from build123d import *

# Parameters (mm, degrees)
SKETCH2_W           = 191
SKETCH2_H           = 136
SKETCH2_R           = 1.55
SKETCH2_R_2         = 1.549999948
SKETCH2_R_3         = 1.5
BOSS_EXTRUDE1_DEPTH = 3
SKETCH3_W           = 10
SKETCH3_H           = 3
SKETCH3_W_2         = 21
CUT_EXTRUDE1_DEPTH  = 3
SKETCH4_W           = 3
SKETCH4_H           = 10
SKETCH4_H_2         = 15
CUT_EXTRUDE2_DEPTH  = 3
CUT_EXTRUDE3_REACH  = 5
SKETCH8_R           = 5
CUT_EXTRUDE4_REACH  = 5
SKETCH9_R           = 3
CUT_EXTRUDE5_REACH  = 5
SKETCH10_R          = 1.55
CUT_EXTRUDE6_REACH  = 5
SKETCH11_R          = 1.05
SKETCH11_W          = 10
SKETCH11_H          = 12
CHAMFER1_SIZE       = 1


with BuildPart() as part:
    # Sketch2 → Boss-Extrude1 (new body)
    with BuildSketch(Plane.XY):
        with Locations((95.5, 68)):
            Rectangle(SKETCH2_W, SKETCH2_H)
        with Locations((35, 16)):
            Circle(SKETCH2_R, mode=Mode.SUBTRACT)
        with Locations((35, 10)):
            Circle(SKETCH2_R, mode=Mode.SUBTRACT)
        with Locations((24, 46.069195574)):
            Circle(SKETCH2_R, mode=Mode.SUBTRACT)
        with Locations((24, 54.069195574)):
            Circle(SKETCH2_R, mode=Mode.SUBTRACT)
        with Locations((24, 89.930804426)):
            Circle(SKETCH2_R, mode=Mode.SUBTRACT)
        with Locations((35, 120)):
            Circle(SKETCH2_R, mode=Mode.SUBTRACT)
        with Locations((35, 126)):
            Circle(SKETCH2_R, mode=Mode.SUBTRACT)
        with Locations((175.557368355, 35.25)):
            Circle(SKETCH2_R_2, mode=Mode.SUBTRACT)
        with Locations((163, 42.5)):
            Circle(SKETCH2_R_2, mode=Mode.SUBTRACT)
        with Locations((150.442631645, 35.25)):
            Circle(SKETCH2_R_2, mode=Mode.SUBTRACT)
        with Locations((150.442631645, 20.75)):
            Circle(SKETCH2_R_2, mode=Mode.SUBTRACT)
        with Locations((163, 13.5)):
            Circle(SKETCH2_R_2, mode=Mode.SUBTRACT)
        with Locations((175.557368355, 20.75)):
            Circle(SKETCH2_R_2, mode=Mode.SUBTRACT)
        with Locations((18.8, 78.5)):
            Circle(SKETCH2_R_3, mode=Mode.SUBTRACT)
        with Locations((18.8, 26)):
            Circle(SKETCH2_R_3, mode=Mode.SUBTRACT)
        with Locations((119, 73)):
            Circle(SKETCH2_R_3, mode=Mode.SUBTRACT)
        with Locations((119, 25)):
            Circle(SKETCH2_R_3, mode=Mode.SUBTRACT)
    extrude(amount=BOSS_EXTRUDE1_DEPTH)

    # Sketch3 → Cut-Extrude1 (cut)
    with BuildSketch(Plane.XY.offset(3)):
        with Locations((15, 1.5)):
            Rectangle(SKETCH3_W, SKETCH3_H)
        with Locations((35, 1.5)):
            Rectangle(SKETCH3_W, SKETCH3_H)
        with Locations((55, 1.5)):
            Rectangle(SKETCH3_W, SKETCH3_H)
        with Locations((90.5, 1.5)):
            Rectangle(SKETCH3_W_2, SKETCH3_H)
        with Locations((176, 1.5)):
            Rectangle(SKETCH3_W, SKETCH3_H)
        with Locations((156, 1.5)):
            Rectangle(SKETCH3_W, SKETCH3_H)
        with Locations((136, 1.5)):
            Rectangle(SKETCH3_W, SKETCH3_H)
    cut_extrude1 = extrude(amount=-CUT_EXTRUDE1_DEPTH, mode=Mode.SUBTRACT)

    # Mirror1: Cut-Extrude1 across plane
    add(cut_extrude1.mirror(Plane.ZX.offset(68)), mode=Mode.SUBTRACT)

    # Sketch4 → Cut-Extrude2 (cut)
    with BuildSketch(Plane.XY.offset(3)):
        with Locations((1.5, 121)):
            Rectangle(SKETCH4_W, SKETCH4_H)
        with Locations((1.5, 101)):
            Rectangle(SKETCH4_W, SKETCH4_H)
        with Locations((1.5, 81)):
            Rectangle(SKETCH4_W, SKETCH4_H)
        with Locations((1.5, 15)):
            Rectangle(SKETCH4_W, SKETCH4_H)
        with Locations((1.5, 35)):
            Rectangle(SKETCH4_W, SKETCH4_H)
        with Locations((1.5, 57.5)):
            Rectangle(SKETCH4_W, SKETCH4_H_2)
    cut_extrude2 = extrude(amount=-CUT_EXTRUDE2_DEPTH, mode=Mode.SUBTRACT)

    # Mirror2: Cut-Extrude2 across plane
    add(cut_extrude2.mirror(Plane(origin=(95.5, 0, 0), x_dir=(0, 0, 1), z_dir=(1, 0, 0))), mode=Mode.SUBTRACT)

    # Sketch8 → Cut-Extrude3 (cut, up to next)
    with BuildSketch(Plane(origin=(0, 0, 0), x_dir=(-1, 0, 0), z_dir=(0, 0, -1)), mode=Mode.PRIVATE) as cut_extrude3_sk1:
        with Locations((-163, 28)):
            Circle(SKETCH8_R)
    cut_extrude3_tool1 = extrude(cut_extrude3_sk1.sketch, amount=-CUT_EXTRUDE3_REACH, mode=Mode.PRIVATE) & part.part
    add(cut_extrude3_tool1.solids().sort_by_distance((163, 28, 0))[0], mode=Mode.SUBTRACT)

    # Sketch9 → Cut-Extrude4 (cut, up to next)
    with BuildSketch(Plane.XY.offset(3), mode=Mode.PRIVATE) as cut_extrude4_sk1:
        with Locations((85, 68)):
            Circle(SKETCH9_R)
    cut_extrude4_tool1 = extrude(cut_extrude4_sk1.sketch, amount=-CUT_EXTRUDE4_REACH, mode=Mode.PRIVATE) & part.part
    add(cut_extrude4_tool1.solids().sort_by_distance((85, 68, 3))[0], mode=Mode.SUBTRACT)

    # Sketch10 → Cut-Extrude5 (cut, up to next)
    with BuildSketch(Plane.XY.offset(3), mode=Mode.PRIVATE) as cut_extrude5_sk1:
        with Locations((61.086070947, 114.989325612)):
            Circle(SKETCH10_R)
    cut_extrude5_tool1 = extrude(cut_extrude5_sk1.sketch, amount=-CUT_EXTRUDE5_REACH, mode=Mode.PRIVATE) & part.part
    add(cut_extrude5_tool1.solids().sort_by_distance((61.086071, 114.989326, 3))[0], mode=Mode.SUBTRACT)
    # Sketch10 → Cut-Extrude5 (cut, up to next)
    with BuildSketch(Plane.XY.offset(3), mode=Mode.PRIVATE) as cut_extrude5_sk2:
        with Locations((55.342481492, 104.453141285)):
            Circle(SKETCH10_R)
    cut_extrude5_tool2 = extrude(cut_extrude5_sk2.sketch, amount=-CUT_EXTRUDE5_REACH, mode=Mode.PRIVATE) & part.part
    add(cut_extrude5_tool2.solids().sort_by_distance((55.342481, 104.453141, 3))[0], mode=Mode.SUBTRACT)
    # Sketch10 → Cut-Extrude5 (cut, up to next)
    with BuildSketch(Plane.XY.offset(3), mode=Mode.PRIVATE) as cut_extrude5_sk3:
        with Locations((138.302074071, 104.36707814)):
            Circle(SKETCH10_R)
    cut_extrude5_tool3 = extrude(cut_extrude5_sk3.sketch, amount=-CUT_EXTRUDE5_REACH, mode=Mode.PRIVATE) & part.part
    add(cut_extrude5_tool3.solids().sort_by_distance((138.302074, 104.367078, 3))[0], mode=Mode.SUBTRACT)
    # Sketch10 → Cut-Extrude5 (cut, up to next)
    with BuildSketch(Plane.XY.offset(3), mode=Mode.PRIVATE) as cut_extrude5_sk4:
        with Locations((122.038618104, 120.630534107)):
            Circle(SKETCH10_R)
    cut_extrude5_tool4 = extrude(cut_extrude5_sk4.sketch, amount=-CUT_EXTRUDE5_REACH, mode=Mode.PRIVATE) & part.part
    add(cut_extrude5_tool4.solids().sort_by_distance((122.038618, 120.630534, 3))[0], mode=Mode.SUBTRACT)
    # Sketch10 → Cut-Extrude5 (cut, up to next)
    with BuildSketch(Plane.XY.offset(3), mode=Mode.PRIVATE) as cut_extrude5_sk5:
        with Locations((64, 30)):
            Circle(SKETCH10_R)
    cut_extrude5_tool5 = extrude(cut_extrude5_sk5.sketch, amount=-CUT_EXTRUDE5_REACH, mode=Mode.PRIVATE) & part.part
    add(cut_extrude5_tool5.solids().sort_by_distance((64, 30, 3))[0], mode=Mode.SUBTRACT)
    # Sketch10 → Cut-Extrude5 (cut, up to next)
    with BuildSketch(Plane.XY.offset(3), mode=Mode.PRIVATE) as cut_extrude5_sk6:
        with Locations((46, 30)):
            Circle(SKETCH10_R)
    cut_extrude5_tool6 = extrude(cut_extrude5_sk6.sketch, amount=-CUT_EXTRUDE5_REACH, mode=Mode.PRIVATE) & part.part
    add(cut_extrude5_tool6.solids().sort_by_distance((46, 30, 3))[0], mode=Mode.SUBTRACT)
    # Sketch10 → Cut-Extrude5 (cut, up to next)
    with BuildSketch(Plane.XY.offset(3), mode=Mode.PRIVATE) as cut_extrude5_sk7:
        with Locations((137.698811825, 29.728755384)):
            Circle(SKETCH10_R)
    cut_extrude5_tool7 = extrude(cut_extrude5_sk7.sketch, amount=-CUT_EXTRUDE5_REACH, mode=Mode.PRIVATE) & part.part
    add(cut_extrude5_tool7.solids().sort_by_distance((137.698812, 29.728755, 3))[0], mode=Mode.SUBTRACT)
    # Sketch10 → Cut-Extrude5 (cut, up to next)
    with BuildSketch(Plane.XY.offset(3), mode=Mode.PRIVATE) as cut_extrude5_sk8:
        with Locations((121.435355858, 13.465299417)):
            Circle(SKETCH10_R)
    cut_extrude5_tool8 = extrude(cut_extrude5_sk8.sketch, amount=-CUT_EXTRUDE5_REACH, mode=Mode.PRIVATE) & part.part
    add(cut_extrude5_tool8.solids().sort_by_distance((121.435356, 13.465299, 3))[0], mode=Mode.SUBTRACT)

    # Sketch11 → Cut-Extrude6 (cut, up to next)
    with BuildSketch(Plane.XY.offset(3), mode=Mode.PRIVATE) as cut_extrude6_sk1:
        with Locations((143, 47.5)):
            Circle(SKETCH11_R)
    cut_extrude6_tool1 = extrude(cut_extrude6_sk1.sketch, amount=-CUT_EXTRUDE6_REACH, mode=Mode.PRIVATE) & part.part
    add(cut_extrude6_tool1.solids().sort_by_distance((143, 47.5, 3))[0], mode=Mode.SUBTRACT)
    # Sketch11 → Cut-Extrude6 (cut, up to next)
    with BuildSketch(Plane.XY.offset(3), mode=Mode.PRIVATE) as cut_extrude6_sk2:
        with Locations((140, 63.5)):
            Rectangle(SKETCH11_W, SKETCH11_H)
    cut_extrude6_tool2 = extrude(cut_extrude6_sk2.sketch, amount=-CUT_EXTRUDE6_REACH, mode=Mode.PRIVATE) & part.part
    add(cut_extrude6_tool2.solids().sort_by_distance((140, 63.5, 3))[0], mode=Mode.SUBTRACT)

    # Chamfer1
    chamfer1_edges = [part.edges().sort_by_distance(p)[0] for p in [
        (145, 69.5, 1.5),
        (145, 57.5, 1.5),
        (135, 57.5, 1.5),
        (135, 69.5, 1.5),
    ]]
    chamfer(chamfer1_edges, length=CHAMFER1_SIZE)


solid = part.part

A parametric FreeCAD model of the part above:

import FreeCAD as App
import Part
import Sketcher

V = App.Vector


def edges_at(feature, points):
    """Names of the edges that pass closest to the given points."""
    edges = feature.Shape.Edges
    near = lambda p: min(range(len(edges)), key=lambda i: edges[i].distToShape(Part.Vertex(*p))[0])
    return sorted({f"Edge{near(p) + 1}" for p in points})


def add_polygon(sketch, points):
    """Adds a closed chain of lines whose ends are joined by coincident constraints."""
    first, n = sketch.GeometryCount, len(points)
    for a, b in zip(points, points[1:] + points[:1]):
        sketch.addGeometry(Part.LineSegment(App.Vector(*a, 0), App.Vector(*b, 0)), False)
    for i in range(n):
        sketch.addConstraint(Sketcher.Constraint("Coincident", first + i, 2, first + (i + 1) % n, 1))

doc = App.newDocument("Part")
body = doc.addObject("PartDesign::Body", "Body")

sketch1 = doc.addObject("Sketcher::SketchObject", "Sketch")
body.addObject(sketch1)
sketch1.AttachmentSupport = (doc.XY_Plane, [""])
sketch1.MapMode = "FlatFace"
add_polygon(sketch1, [(0, 136), (0, 0), (191, 0), (191, 136)])
sketch1.addGeometry(Part.Circle(V(35, 10, 0), V(0, 0, 1), 1.6), False)
sketch1.addGeometry(Part.Circle(V(35, 16, 0), V(0, 0, 1), 1.6), False)
sketch1.addGeometry(Part.Circle(V(18.8, 26, 0), V(0, 0, 1), 1.5), False)
sketch1.addGeometry(Part.Circle(V(24, 46.1, 0), V(0, 0, 1), 1.6), False)
sketch1.addGeometry(Part.Circle(V(24, 54.1, 0), V(0, 0, 1), 1.6), False)
sketch1.addGeometry(Part.Circle(V(119, 25, 0), V(0, 0, 1), 1.5), False)
sketch1.addGeometry(Part.Circle(V(150.4, 20.8, 0), V(0, 0, 1), 1.5), False)
sketch1.addGeometry(Part.Circle(V(163, 13.5, 0), V(0, 0, 1), 1.5), False)
sketch1.addGeometry(Part.Circle(V(175.6, 20.8, 0), V(0, 0, 1), 1.5), False)
sketch1.addGeometry(Part.Circle(V(150.4, 35.2, 0), V(0, 0, 1), 1.5), False)
sketch1.addGeometry(Part.Circle(V(175.6, 35.2, 0), V(0, 0, 1), 1.5), False)
sketch1.addGeometry(Part.Circle(V(163, 42.5, 0), V(0, 0, 1), 1.5), False)
sketch1.addGeometry(Part.Circle(V(18.8, 78.5, 0), V(0, 0, 1), 1.5), False)
sketch1.addGeometry(Part.Circle(V(24, 89.9, 0), V(0, 0, 1), 1.6), False)
sketch1.addGeometry(Part.Circle(V(35, 120, 0), V(0, 0, 1), 1.6), False)
sketch1.addGeometry(Part.Circle(V(35, 126, 0), V(0, 0, 1), 1.6), False)
sketch1.addGeometry(Part.Circle(V(119, 73, 0), V(0, 0, 1), 1.5), False)
sketch1.addConstraint(Sketcher.Constraint("Vertical", 0))
sketch1.addConstraint(Sketcher.Constraint("Horizontal", 1))
sketch1.addConstraint(Sketcher.Constraint("Vertical", 2))
sketch1.addConstraint(Sketcher.Constraint("Horizontal", 3))
sketch1.addConstraint(Sketcher.Constraint("Coincident", 0, 2, -1, 1))
sketch1.addConstraint(Sketcher.Constraint("Equal", 4, 5))
sketch1.addConstraint(Sketcher.Constraint("Equal", 5, 7))
sketch1.addConstraint(Sketcher.Constraint("Equal", 7, 8))
sketch1.addConstraint(Sketcher.Constraint("Equal", 6, 9))
sketch1.addConstraint(Sketcher.Constraint("Equal", 8, 10))
sketch1.addConstraint(Sketcher.Constraint("Equal", 10, 11))
sketch1.addConstraint(Sketcher.Constraint("Equal", 11, 12))
sketch1.addConstraint(Sketcher.Constraint("Equal", 12, 13))
sketch1.addConstraint(Sketcher.Constraint("Equal", 13, 14))
sketch1.addConstraint(Sketcher.Constraint("Equal", 14, 15))
sketch1.addConstraint(Sketcher.Constraint("Equal", 9, 16))
sketch1.addConstraint(Sketcher.Constraint("Equal", 15, 17))
sketch1.addConstraint(Sketcher.Constraint("Equal", 17, 18))
sketch1.addConstraint(Sketcher.Constraint("Equal", 18, 19))
sketch1.addConstraint(Sketcher.Constraint("Equal", 16, 20))
sketch1.addConstraint(Sketcher.Constraint("Horizontal", 10, 3, 12, 3))
sketch1.addConstraint(Sketcher.Constraint("Horizontal", 13, 3, 14, 3))
sketch1.addConstraint(Sketcher.Constraint("Vertical", 4, 3, 5, 3))
sketch1.addConstraint(Sketcher.Constraint("Vertical", 7, 3, 8, 3))
sketch1.addConstraint(Sketcher.Constraint("Vertical", 10, 3, 13, 3))
sketch1.addConstraint(Sketcher.Constraint("Vertical", 12, 3, 14, 3))
sketch1.addConstraint(Sketcher.Constraint("Vertical", 11, 3, 15, 3))
sketch1.addConstraint(Sketcher.Constraint("Vertical", 6, 3, 16, 3))
sketch1.addConstraint(Sketcher.Constraint("Vertical", 8, 3, 17, 3))
sketch1.addConstraint(Sketcher.Constraint("Vertical", 5, 3, 18, 3))
sketch1.addConstraint(Sketcher.Constraint("Vertical", 18, 3, 19, 3))
sketch1.addConstraint(Sketcher.Constraint("Vertical", 9, 3, 20, 3))
sketch1.addConstraint(Sketcher.Constraint("Diameter", 6, 3.0))
sketch1.addConstraint(Sketcher.Constraint("Diameter", 4, 3.1))
sketch1.addConstraint(Sketcher.Constraint("DistanceX", 1, 1, 1, 2, 191.0))
sketch1.addConstraint(Sketcher.Constraint("DistanceY", 0, 2, 0, 1, 136.0))
sketch1.addConstraint(Sketcher.Constraint("DistanceX", -1, 1, 4, 3, 35.0))
sketch1.addConstraint(Sketcher.Constraint("DistanceY", -1, 1, 4, 3, 10.0))
sketch1.addConstraint(Sketcher.Constraint("DistanceY", -1, 1, 5, 3, 16.0))
sketch1.addConstraint(Sketcher.Constraint("DistanceY", -1, 1, 6, 3, 26.0))
sketch1.addConstraint(Sketcher.Constraint("DistanceX", -1, 1, 7, 3, 24.0))
sketch1.addConstraint(Sketcher.Constraint("DistanceX", -1, 1, 9, 3, 119.0))
sketch1.addConstraint(Sketcher.Constraint("DistanceY", -1, 1, 9, 3, 25.0))
sketch1.addConstraint(Sketcher.Constraint("DistanceX", -1, 1, 11, 3, 163.0))
sketch1.addConstraint(Sketcher.Constraint("DistanceY", -1, 1, 18, 3, 120.0))
sketch1.addConstraint(Sketcher.Constraint("DistanceY", -1, 1, 19, 3, 126.0))
sketch1.addConstraint(Sketcher.Constraint("DistanceY", -1, 1, 20, 3, 73.0))
sketch1.addConstraint(Sketcher.Constraint("DistanceY", 7, 3, 8, 3, 8.0))
sketch1.addConstraint(Sketcher.Constraint("DistanceY", 11, 3, 15, 3, 29.0))
sketch1.addConstraint(Sketcher.Constraint("DistanceX", -1, 1, 6, 3, 18.8))
sketch1.addConstraint(Sketcher.Constraint("DistanceY", -1, 1, 11, 3, 13.5))
sketch1.addConstraint(Sketcher.Constraint("DistanceY", -1, 1, 16, 3, 78.5))
sketch1.addConstraint(Sketcher.Constraint("DistanceY", 10, 3, 13, 3, 14.5))
sketch1.addConstraint(Sketcher.Constraint("DistanceY", -1, 1, 10, 3, 20.75))
sketch1.addConstraint(Sketcher.Constraint("DistanceX", -1, 1, 10, 3, 150.442632))
sketch1.addConstraint(Sketcher.Constraint("DistanceX", -1, 1, 12, 3, 175.557368))
sketch1.addConstraint(Sketcher.Constraint("DistanceY", 8, 3, 17, 3, 35.861609))
sketch1.addConstraint(Sketcher.Constraint("DistanceY", -1, 1, 7, 3, 46.069196))
pad1 = doc.addObject("PartDesign::Pad", "Pad")
body.addObject(pad1)
pad1.Profile = sketch1
pad1.Length = 3

sketch2 = doc.addObject("Sketcher::SketchObject", "Sketch001")
body.addObject(sketch2)
sketch2.AttachmentSupport = (doc.XY_Plane, [""])
sketch2.MapMode = "FlatFace"
sketch2.AttachmentOffset = App.Placement(V(0, 0, 3), App.Rotation())
add_polygon(sketch2, [(10, 3), (10, 0), (20, 0), (20, 3)])
add_polygon(sketch2, [(30, 3), (30, 0), (40, 0), (40, 3)])
add_polygon(sketch2, [(50, 3), (50, 0), (60, 0), (60, 3)])
add_polygon(sketch2, [(80, 3), (80, 0), (101, 0), (101, 3)])
add_polygon(sketch2, [(171, 3), (171, 0), (181, 0), (181, 3)])
add_polygon(sketch2, [(151, 3), (151, 0), (161, 0), (161, 3)])
add_polygon(sketch2, [(131, 3), (131, 0), (141, 0), (141, 3)])
sketch2.addConstraint(Sketcher.Constraint("Vertical", 0))
sketch2.addConstraint(Sketcher.Constraint("Horizontal", 1))
sketch2.addConstraint(Sketcher.Constraint("Vertical", 2))
sketch2.addConstraint(Sketcher.Constraint("Horizontal", 3))
sketch2.addConstraint(Sketcher.Constraint("Vertical", 4))
sketch2.addConstraint(Sketcher.Constraint("Horizontal", 5))
sketch2.addConstraint(Sketcher.Constraint("Vertical", 6))
sketch2.addConstraint(Sketcher.Constraint("Horizontal", 7))
sketch2.addConstraint(Sketcher.Constraint("Vertical", 8))
sketch2.addConstraint(Sketcher.Constraint("Horizontal", 9))
sketch2.addConstraint(Sketcher.Constraint("Vertical", 10))
sketch2.addConstraint(Sketcher.Constraint("Horizontal", 11))
sketch2.addConstraint(Sketcher.Constraint("Vertical", 12))
sketch2.addConstraint(Sketcher.Constraint("Horizontal", 13))
sketch2.addConstraint(Sketcher.Constraint("Vertical", 14))
sketch2.addConstraint(Sketcher.Constraint("Horizontal", 15))
sketch2.addConstraint(Sketcher.Constraint("Vertical", 16))
sketch2.addConstraint(Sketcher.Constraint("Horizontal", 17))
sketch2.addConstraint(Sketcher.Constraint("Vertical", 18))
sketch2.addConstraint(Sketcher.Constraint("Horizontal", 19))
sketch2.addConstraint(Sketcher.Constraint("Vertical", 20))
sketch2.addConstraint(Sketcher.Constraint("Horizontal", 21))
sketch2.addConstraint(Sketcher.Constraint("Vertical", 22))
sketch2.addConstraint(Sketcher.Constraint("Horizontal", 23))
sketch2.addConstraint(Sketcher.Constraint("Vertical", 24))
sketch2.addConstraint(Sketcher.Constraint("Horizontal", 25))
sketch2.addConstraint(Sketcher.Constraint("Vertical", 26))
sketch2.addConstraint(Sketcher.Constraint("Horizontal", 27))
sketch2.addConstraint(Sketcher.Constraint("PointOnObject", 0, 2, -1))
sketch2.addConstraint(Sketcher.Constraint("PointOnObject", 4, 2, -1))
sketch2.addConstraint(Sketcher.Constraint("PointOnObject", 8, 2, -1))
sketch2.addConstraint(Sketcher.Constraint("PointOnObject", 12, 2, -1))
sketch2.addConstraint(Sketcher.Constraint("PointOnObject", 16, 2, -1))
sketch2.addConstraint(Sketcher.Constraint("PointOnObject", 20, 2, -1))
sketch2.addConstraint(Sketcher.Constraint("PointOnObject", 24, 2, -1))
sketch2.addConstraint(Sketcher.Constraint("Horizontal", 3, 2, 6, 2))
sketch2.addConstraint(Sketcher.Constraint("Horizontal", 7, 2, 10, 2))
sketch2.addConstraint(Sketcher.Constraint("Horizontal", 11, 2, 14, 2))
sketch2.addConstraint(Sketcher.Constraint("Horizontal", 15, 2, 18, 2))
sketch2.addConstraint(Sketcher.Constraint("Horizontal", 19, 2, 22, 2))
sketch2.addConstraint(Sketcher.Constraint("Horizontal", 23, 2, 26, 2))
sketch2.addConstraint(Sketcher.Constraint("Equal", 3, 5))
sketch2.addConstraint(Sketcher.Constraint("Equal", 7, 9))
sketch2.addConstraint(Sketcher.Constraint("Equal", 11, 17))
sketch2.addConstraint(Sketcher.Constraint("Equal", 19, 21))
sketch2.addConstraint(Sketcher.Constraint("Equal", 23, 25))
sketch2.addConstraint(Sketcher.Constraint("DistanceX", 1, 1, 1, 2, 10.0))
sketch2.addConstraint(Sketcher.Constraint("DistanceX", 13, 1, 13, 2, 21.0))
sketch2.addConstraint(Sketcher.Constraint("DistanceY", 0, 2, 0, 1, 3.0))
sketch2.addConstraint(Sketcher.Constraint("DistanceX", -1, 1, 0, 2, 10.0))
sketch2.addConstraint(Sketcher.Constraint("DistanceX", -1, 1, 4, 2, 30.0))
sketch2.addConstraint(Sketcher.Constraint("DistanceX", -1, 1, 8, 2, 50.0))
sketch2.addConstraint(Sketcher.Constraint("DistanceX", -1, 1, 12, 2, 80.0))
sketch2.addConstraint(Sketcher.Constraint("DistanceX", -1, 1, 16, 2, 171.0))
sketch2.addConstraint(Sketcher.Constraint("DistanceX", -1, 1, 20, 2, 151.0))
sketch2.addConstraint(Sketcher.Constraint("DistanceX", -1, 1, 24, 2, 131.0))
pocket1 = doc.addObject("PartDesign::Pocket", "Pocket")
body.addObject(pocket1)
pocket1.Profile = sketch2
pocket1.Length = 3
doc.recompute()

datumplane = doc.addObject("PartDesign::Plane", "DatumPlane")
body.addObject(datumplane)
datumplane.AttachmentSupport = (doc.XZ_Plane, [""])
datumplane.MapMode = "FlatFace"
datumplane.AttachmentOffset = App.Placement(V(0, 0, -68), App.Rotation())
mirrored = doc.addObject("PartDesign::Mirrored", "Mirrored")
body.addObject(mirrored)
mirrored.Originals = [pocket1]
mirrored.MirrorPlane = (datumplane, [""])
body.Tip = mirrored

sketch3 = doc.addObject("Sketcher::SketchObject", "Sketch002")
body.addObject(sketch3)
sketch3.AttachmentSupport = (doc.XY_Plane, [""])
sketch3.MapMode = "FlatFace"
sketch3.AttachmentOffset = App.Placement(V(0, 0, 3), App.Rotation())
add_polygon(sketch3, [(0, 126), (0, 116), (3, 116), (3, 126)])
add_polygon(sketch3, [(0, 106), (0, 96), (3, 96), (3, 106)])
add_polygon(sketch3, [(0, 86), (0, 76), (3, 76), (3, 86)])
add_polygon(sketch3, [(0, 20), (0, 10), (3, 10), (3, 20)])
add_polygon(sketch3, [(0, 40), (0, 30), (3, 30), (3, 40)])
add_polygon(sketch3, [(0, 65), (0, 50), (3, 50), (3, 65)])
sketch3.addConstraint(Sketcher.Constraint("Vertical", 0))
sketch3.addConstraint(Sketcher.Constraint("Horizontal", 1))
sketch3.addConstraint(Sketcher.Constraint("Vertical", 2))
sketch3.addConstraint(Sketcher.Constraint("Horizontal", 3))
sketch3.addConstraint(Sketcher.Constraint("Vertical", 4))
sketch3.addConstraint(Sketcher.Constraint("Horizontal", 5))
sketch3.addConstraint(Sketcher.Constraint("Vertical", 6))
sketch3.addConstraint(Sketcher.Constraint("Horizontal", 7))
sketch3.addConstraint(Sketcher.Constraint("Vertical", 8))
sketch3.addConstraint(Sketcher.Constraint("Horizontal", 9))
sketch3.addConstraint(Sketcher.Constraint("Vertical", 10))
sketch3.addConstraint(Sketcher.Constraint("Horizontal", 11))
sketch3.addConstraint(Sketcher.Constraint("Vertical", 12))
sketch3.addConstraint(Sketcher.Constraint("Horizontal", 13))
sketch3.addConstraint(Sketcher.Constraint("Vertical", 14))
sketch3.addConstraint(Sketcher.Constraint("Horizontal", 15))
sketch3.addConstraint(Sketcher.Constraint("Vertical", 16))
sketch3.addConstraint(Sketcher.Constraint("Horizontal", 17))
sketch3.addConstraint(Sketcher.Constraint("Vertical", 18))
sketch3.addConstraint(Sketcher.Constraint("Horizontal", 19))
sketch3.addConstraint(Sketcher.Constraint("Vertical", 20))
sketch3.addConstraint(Sketcher.Constraint("Horizontal", 21))
sketch3.addConstraint(Sketcher.Constraint("Vertical", 22))
sketch3.addConstraint(Sketcher.Constraint("Horizontal", 23))
sketch3.addConstraint(Sketcher.Constraint("PointOnObject", 0, 2, -2))
sketch3.addConstraint(Sketcher.Constraint("PointOnObject", 4, 2, -2))
sketch3.addConstraint(Sketcher.Constraint("PointOnObject", 8, 2, -2))
sketch3.addConstraint(Sketcher.Constraint("PointOnObject", 12, 2, -2))
sketch3.addConstraint(Sketcher.Constraint("PointOnObject", 16, 2, -2))
sketch3.addConstraint(Sketcher.Constraint("PointOnObject", 20, 2, -2))
sketch3.addConstraint(Sketcher.Constraint("Vertical", 2, 2, 5, 2))
sketch3.addConstraint(Sketcher.Constraint("Vertical", 6, 2, 9, 2))
sketch3.addConstraint(Sketcher.Constraint("Vertical", 10, 2, 13, 2))
sketch3.addConstraint(Sketcher.Constraint("Vertical", 14, 2, 17, 2))
sketch3.addConstraint(Sketcher.Constraint("Vertical", 18, 2, 21, 2))
sketch3.addConstraint(Sketcher.Constraint("Equal", 2, 4))
sketch3.addConstraint(Sketcher.Constraint("Equal", 6, 8))
sketch3.addConstraint(Sketcher.Constraint("Equal", 10, 12))
sketch3.addConstraint(Sketcher.Constraint("Equal", 14, 16))
sketch3.addConstraint(Sketcher.Constraint("DistanceX", 1, 1, 1, 2, 3.0))
sketch3.addConstraint(Sketcher.Constraint("DistanceY", 0, 2, 0, 1, 10.0))
sketch3.addConstraint(Sketcher.Constraint("DistanceY", 20, 2, 20, 1, 15.0))
sketch3.addConstraint(Sketcher.Constraint("DistanceY", -1, 1, 0, 2, 116.0))
sketch3.addConstraint(Sketcher.Constraint("DistanceY", -1, 1, 4, 2, 96.0))
sketch3.addConstraint(Sketcher.Constraint("DistanceY", -1, 1, 8, 2, 76.0))
sketch3.addConstraint(Sketcher.Constraint("DistanceY", -1, 1, 12, 2, 10.0))
sketch3.addConstraint(Sketcher.Constraint("DistanceY", -1, 1, 16, 2, 30.0))
sketch3.addConstraint(Sketcher.Constraint("DistanceY", -1, 1, 20, 2, 50.0))
pocket2 = doc.addObject("PartDesign::Pocket", "Pocket001")
body.addObject(pocket2)
pocket2.Profile = sketch3
pocket2.Length = 3
doc.recompute()

datumplane2 = doc.addObject("PartDesign::Plane", "DatumPlane001")
body.addObject(datumplane2)
datumplane2.AttachmentSupport = (doc.YZ_Plane, [""])
datumplane2.MapMode = "FlatFace"
datumplane2.AttachmentOffset = App.Placement(V(0, 0, 95.5), App.Rotation())
mirrored2 = doc.addObject("PartDesign::Mirrored", "Mirrored001")
body.addObject(mirrored2)
mirrored2.Originals = [pocket2]
mirrored2.MirrorPlane = (datumplane2, [""])
body.Tip = mirrored2

sketch4 = doc.addObject("Sketcher::SketchObject", "Sketch003")
body.addObject(sketch4)
sketch4.AttachmentSupport = (doc.XY_Plane, [""])
sketch4.MapMode = "FlatFace"
sketch4.addGeometry(Part.Circle(V(163, 28, 0), V(0, 0, 1), 5), False)
sketch4.addConstraint(Sketcher.Constraint("Diameter", 0, 10.0))
sketch4.addConstraint(Sketcher.Constraint("DistanceX", -1, 1, 0, 3, 163.0))
sketch4.addConstraint(Sketcher.Constraint("DistanceY", -1, 1, 0, 3, 28.0))
pocket3 = doc.addObject("PartDesign::Pocket", "Pocket002")
body.addObject(pocket3)
pocket3.Profile = sketch4
pocket3.Type = "UpToFirst"
pocket3.Reversed = True

sketch5 = doc.addObject("Sketcher::SketchObject", "Sketch004")
body.addObject(sketch5)
sketch5.AttachmentSupport = (doc.XY_Plane, [""])
sketch5.MapMode = "FlatFace"
sketch5.AttachmentOffset = App.Placement(V(0, 0, 3), App.Rotation())
sketch5.addGeometry(Part.Circle(V(85, 68, 0), V(0, 0, 1), 3), False)
sketch5.addConstraint(Sketcher.Constraint("Diameter", 0, 6.0))
sketch5.addConstraint(Sketcher.Constraint("DistanceX", -1, 1, 0, 3, 85.0))
sketch5.addConstraint(Sketcher.Constraint("DistanceY", -1, 1, 0, 3, 68.0))
pocket4 = doc.addObject("PartDesign::Pocket", "Pocket003")
body.addObject(pocket4)
pocket4.Profile = sketch5
pocket4.Type = "UpToFirst"

sketch6 = doc.addObject("Sketcher::SketchObject", "Sketch005")
body.addObject(sketch6)
sketch6.AttachmentSupport = (doc.XY_Plane, [""])
sketch6.MapMode = "FlatFace"
sketch6.AttachmentOffset = App.Placement(V(0, 0, 3), App.Rotation())
sketch6.addGeometry(Part.Circle(V(61.1, 115, 0), V(0, 0, 1), 1.6), False)
sketch6.addConstraint(Sketcher.Constraint("Diameter", 0, 3.1))
sketch6.addConstraint(Sketcher.Constraint("DistanceX", -1, 1, 0, 3, 61.086071))
sketch6.addConstraint(Sketcher.Constraint("DistanceY", -1, 1, 0, 3, 114.989326))
pocket5 = doc.addObject("PartDesign::Pocket", "Pocket004")
body.addObject(pocket5)
pocket5.Profile = sketch6
pocket5.Type = "UpToFirst"

sketch7 = doc.addObject("Sketcher::SketchObject", "Sketch006")
body.addObject(sketch7)
sketch7.AttachmentSupport = (doc.XY_Plane, [""])
sketch7.MapMode = "FlatFace"
sketch7.AttachmentOffset = App.Placement(V(0, 0, 3), App.Rotation())
sketch7.addGeometry(Part.Circle(V(55.3, 104.5, 0), V(0, 0, 1), 1.6), False)
sketch7.addConstraint(Sketcher.Constraint("Diameter", 0, 3.1))
sketch7.addConstraint(Sketcher.Constraint("DistanceX", -1, 1, 0, 3, 55.342481))
sketch7.addConstraint(Sketcher.Constraint("DistanceY", -1, 1, 0, 3, 104.453141))
pocket6 = doc.addObject("PartDesign::Pocket", "Pocket005")
body.addObject(pocket6)
pocket6.Profile = sketch7
pocket6.Type = "UpToFirst"

sketch8 = doc.addObject("Sketcher::SketchObject", "Sketch007")
body.addObject(sketch8)
sketch8.AttachmentSupport = (doc.XY_Plane, [""])
sketch8.MapMode = "FlatFace"
sketch8.AttachmentOffset = App.Placement(V(0, 0, 3), App.Rotation())
sketch8.addGeometry(Part.Circle(V(138.3, 104.4, 0), V(0, 0, 1), 1.6), False)
sketch8.addConstraint(Sketcher.Constraint("Diameter", 0, 3.1))
sketch8.addConstraint(Sketcher.Constraint("DistanceY", -1, 1, 0, 3, 104.367078))
sketch8.addConstraint(Sketcher.Constraint("DistanceX", -1, 1, 0, 3, 138.302074))
pocket7 = doc.addObject("PartDesign::Pocket", "Pocket006")
body.addObject(pocket7)
pocket7.Profile = sketch8
pocket7.Type = "UpToFirst"

sketch9 = doc.addObject("Sketcher::SketchObject", "Sketch008")
body.addObject(sketch9)
sketch9.AttachmentSupport = (doc.XY_Plane, [""])
sketch9.MapMode = "FlatFace"
sketch9.AttachmentOffset = App.Placement(V(0, 0, 3), App.Rotation())
sketch9.addGeometry(Part.Circle(V(122, 120.6, 0), V(0, 0, 1), 1.6), False)
sketch9.addConstraint(Sketcher.Constraint("Diameter", 0, 3.1))
sketch9.addConstraint(Sketcher.Constraint("DistanceX", -1, 1, 0, 3, 122.038618))
sketch9.addConstraint(Sketcher.Constraint("DistanceY", -1, 1, 0, 3, 120.630534))
pocket8 = doc.addObject("PartDesign::Pocket", "Pocket007")
body.addObject(pocket8)
pocket8.Profile = sketch9
pocket8.Type = "UpToFirst"

sketch10 = doc.addObject("Sketcher::SketchObject", "Sketch009")
body.addObject(sketch10)
sketch10.AttachmentSupport = (doc.XY_Plane, [""])
sketch10.MapMode = "FlatFace"
sketch10.AttachmentOffset = App.Placement(V(0, 0, 3), App.Rotation())
sketch10.addGeometry(Part.Circle(V(64, 30, 0), V(0, 0, 1), 1.6), False)
sketch10.addConstraint(Sketcher.Constraint("Diameter", 0, 3.1))
sketch10.addConstraint(Sketcher.Constraint("DistanceX", -1, 1, 0, 3, 64.0))
sketch10.addConstraint(Sketcher.Constraint("DistanceY", -1, 1, 0, 3, 30.0))
pocket9 = doc.addObject("PartDesign::Pocket", "Pocket008")
body.addObject(pocket9)
pocket9.Profile = sketch10
pocket9.Type = "UpToFirst"

sketch11 = doc.addObject("Sketcher::SketchObject", "Sketch010")
body.addObject(sketch11)
sketch11.AttachmentSupport = (doc.XY_Plane, [""])
sketch11.MapMode = "FlatFace"
sketch11.AttachmentOffset = App.Placement(V(0, 0, 3), App.Rotation())
sketch11.addGeometry(Part.Circle(V(46, 30, 0), V(0, 0, 1), 1.6), False)
sketch11.addConstraint(Sketcher.Constraint("Diameter", 0, 3.1))
sketch11.addConstraint(Sketcher.Constraint("DistanceX", -1, 1, 0, 3, 46.0))
sketch11.addConstraint(Sketcher.Constraint("DistanceY", -1, 1, 0, 3, 30.0))
pocket10 = doc.addObject("PartDesign::Pocket", "Pocket009")
body.addObject(pocket10)
pocket10.Profile = sketch11
pocket10.Type = "UpToFirst"

sketch12 = doc.addObject("Sketcher::SketchObject", "Sketch011")
body.addObject(sketch12)
sketch12.AttachmentSupport = (doc.XY_Plane, [""])
sketch12.MapMode = "FlatFace"
sketch12.AttachmentOffset = App.Placement(V(0, 0, 3), App.Rotation())
sketch12.addGeometry(Part.Circle(V(137.7, 29.7, 0), V(0, 0, 1), 1.6), False)
sketch12.addConstraint(Sketcher.Constraint("Diameter", 0, 3.1))
sketch12.addConstraint(Sketcher.Constraint("DistanceX", -1, 1, 0, 3, 137.698812))
sketch12.addConstraint(Sketcher.Constraint("DistanceY", -1, 1, 0, 3, 29.728755))
pocket11 = doc.addObject("PartDesign::Pocket", "Pocket010")
body.addObject(pocket11)
pocket11.Profile = sketch12
pocket11.Type = "UpToFirst"

sketch13 = doc.addObject("Sketcher::SketchObject", "Sketch012")
body.addObject(sketch13)
sketch13.AttachmentSupport = (doc.XY_Plane, [""])
sketch13.MapMode = "FlatFace"
sketch13.AttachmentOffset = App.Placement(V(0, 0, 3), App.Rotation())
sketch13.addGeometry(Part.Circle(V(121.4, 13.5, 0), V(0, 0, 1), 1.6), False)
sketch13.addConstraint(Sketcher.Constraint("Diameter", 0, 3.1))
sketch13.addConstraint(Sketcher.Constraint("DistanceY", -1, 1, 0, 3, 13.465299))
sketch13.addConstraint(Sketcher.Constraint("DistanceX", -1, 1, 0, 3, 121.435356))
pocket12 = doc.addObject("PartDesign::Pocket", "Pocket011")
body.addObject(pocket12)
pocket12.Profile = sketch13
pocket12.Type = "UpToFirst"

sketch14 = doc.addObject("Sketcher::SketchObject", "Sketch013")
body.addObject(sketch14)
sketch14.AttachmentSupport = (doc.XY_Plane, [""])
sketch14.MapMode = "FlatFace"
sketch14.AttachmentOffset = App.Placement(V(0, 0, 3), App.Rotation())
sketch14.addGeometry(Part.Circle(V(143, 47.5, 0), V(0, 0, 1), 1.1), False)
sketch14.addConstraint(Sketcher.Constraint("Diameter", 0, 2.1))
sketch14.addConstraint(Sketcher.Constraint("DistanceX", -1, 1, 0, 3, 143.0))
sketch14.addConstraint(Sketcher.Constraint("DistanceY", -1, 1, 0, 3, 47.5))
pocket13 = doc.addObject("PartDesign::Pocket", "Pocket012")
body.addObject(pocket13)
pocket13.Profile = sketch14
pocket13.Type = "UpToFirst"

sketch15 = doc.addObject("Sketcher::SketchObject", "Sketch014")
body.addObject(sketch15)
sketch15.AttachmentSupport = (doc.XY_Plane, [""])
sketch15.MapMode = "FlatFace"
sketch15.AttachmentOffset = App.Placement(V(0, 0, 3), App.Rotation())
add_polygon(sketch15, [(135, 70), (135, 58), (145, 58), (145, 70)])
sketch15.addConstraint(Sketcher.Constraint("Vertical", 0))
sketch15.addConstraint(Sketcher.Constraint("Horizontal", 1))
sketch15.addConstraint(Sketcher.Constraint("Vertical", 2))
sketch15.addConstraint(Sketcher.Constraint("Horizontal", 3))
sketch15.addConstraint(Sketcher.Constraint("DistanceX", 1, 1, 1, 2, 10.0))
sketch15.addConstraint(Sketcher.Constraint("DistanceY", 0, 2, 0, 1, 12.0))
sketch15.addConstraint(Sketcher.Constraint("DistanceX", -1, 1, 0, 2, 135.0))
sketch15.addConstraint(Sketcher.Constraint("DistanceY", -1, 1, 0, 2, 57.5))
pocket14 = doc.addObject("PartDesign::Pocket", "Pocket013")
body.addObject(pocket14)
pocket14.Profile = sketch15
pocket14.Type = "UpToFirst"
doc.recompute()

chamfer = doc.addObject("PartDesign::Chamfer", "Chamfer")
body.addObject(chamfer)
chamfer.Base = (pocket14, edges_at(pocket14, [
    (145, 69.5, 1.5),
    (145, 57.5, 1.5),
    (135, 57.5, 1.5),
    (135, 69.5, 1.5),
]))
chamfer.Size = 1

doc.recompute()
